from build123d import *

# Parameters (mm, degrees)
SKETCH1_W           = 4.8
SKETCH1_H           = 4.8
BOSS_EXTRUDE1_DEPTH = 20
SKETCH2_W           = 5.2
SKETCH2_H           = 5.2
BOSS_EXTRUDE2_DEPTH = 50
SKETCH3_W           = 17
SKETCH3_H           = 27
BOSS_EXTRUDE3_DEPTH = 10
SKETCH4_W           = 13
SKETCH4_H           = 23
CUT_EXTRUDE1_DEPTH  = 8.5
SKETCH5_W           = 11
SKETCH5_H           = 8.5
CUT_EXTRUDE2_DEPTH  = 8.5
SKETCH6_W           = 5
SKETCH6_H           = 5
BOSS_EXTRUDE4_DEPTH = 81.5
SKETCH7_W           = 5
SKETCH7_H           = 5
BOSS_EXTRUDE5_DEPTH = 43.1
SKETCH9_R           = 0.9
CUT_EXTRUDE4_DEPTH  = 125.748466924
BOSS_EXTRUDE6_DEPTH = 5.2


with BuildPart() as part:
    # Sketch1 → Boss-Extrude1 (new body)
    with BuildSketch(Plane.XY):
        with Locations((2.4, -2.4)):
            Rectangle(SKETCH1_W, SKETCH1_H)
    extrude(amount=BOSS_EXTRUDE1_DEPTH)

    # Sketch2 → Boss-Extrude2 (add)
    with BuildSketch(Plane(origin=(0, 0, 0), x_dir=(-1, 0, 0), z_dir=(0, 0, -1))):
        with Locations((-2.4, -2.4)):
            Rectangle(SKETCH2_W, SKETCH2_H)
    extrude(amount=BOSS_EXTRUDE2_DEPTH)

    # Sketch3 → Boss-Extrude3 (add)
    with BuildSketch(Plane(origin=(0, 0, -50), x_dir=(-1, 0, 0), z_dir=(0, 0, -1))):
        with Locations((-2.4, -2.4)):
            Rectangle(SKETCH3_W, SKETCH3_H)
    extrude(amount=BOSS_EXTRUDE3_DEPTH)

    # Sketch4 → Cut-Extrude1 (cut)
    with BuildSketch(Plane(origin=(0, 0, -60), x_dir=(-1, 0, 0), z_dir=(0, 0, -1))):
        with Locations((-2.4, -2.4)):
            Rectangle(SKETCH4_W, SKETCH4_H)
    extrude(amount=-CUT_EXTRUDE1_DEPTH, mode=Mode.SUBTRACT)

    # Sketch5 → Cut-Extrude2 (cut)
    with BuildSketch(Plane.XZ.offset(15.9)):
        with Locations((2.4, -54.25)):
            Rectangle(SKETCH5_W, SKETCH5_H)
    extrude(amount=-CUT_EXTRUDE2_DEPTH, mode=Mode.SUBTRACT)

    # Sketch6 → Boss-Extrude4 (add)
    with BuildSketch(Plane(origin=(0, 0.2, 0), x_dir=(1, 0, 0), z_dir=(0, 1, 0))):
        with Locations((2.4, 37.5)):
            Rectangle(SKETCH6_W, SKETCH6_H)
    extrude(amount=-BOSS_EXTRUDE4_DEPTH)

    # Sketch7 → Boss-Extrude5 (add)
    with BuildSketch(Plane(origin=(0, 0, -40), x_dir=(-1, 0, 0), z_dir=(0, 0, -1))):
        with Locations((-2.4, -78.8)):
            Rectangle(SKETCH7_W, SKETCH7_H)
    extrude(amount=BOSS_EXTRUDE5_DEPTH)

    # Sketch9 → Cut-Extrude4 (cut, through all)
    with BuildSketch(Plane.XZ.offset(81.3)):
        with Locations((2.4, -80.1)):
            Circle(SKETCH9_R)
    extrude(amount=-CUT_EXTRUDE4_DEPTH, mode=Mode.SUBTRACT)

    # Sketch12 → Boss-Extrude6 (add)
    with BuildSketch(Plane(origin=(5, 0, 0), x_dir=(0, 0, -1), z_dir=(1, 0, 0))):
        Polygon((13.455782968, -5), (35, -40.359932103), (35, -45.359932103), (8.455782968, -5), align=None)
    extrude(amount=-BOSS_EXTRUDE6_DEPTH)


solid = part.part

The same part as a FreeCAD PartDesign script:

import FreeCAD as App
import Part
import Sketcher

V = App.Vector


def add_polygon(sketch, points):
    """Adds a closed chain of lines whose ends are joined by coincident constraints."""
    first, n = sketch.GeometryCount, len(points)
    for a, b in zip(points, points[1:] + points[:1]):
        sketch.addGeometry(Part.LineSegment(App.Vector(*a, 0), App.Vector(*b, 0)), False)
    for i in range(n):
        sketch.addConstraint(Sketcher.Constraint("Coincident", first + i, 2, first + (i + 1) % n, 1))

doc = App.newDocument("Part")
body = doc.addObject("PartDesign::Body", "Body")

# Sketch on XY plane
sketch1 = doc.addObject("Sketcher::SketchObject", "Sketch")
body.addObject(sketch1)
sketch1.AttachmentSupport = (doc.XY_Plane, [""])
sketch1.MapMode = "FlatFace"
add_polygon(sketch1, [(0, 0), (0, -4.8), (4.8, -4.8), (4.8, 0)])  # lines 0-3
sketch1.addConstraint(Sketcher.Constraint("Vertical", 0))
sketch1.addConstraint(Sketcher.Constraint("Horizontal", 1))
sketch1.addConstraint(Sketcher.Constraint("Vertical", 2))
sketch1.addConstraint(Sketcher.Constraint("Horizontal", 3))
sketch1.addConstraint(Sketcher.Constraint("Coincident", 3, 2, -1, 1))
sketch1.addConstraint(Sketcher.Constraint("Equal", 3, 0))
sketch1.addConstraint(Sketcher.Constraint("DistanceX", 1, 1, 1, 2, 4.8))
pad1 = doc.addObject("PartDesign::Pad", "Pad")
body.addObject(pad1)
pad1.Profile = sketch1
pad1.Length = 20

# Sketch on XY plane
sketch2 = doc.addObject("Sketcher::SketchObject", "Sketch001")
body.addObject(sketch2)
sketch2.AttachmentSupport = (doc.XY_Plane, [""])
sketch2.MapMode = "FlatFace"
add_polygon(sketch2, [(5, 0), (5, -5), (0, -5), (0, 0)])  # lines 0-3
sketch2.addConstraint(Sketcher.Constraint("Vertical", 0))
sketch2.addConstraint(Sketcher.Constraint("Horizontal", 1))
sketch2.addConstraint(Sketcher.Constraint("Vertical", 2))
sketch2.addConstraint(Sketcher.Constraint("Horizontal", 3))
sketch2.addConstraint(Sketcher.Constraint("Equal", 3, 0))
sketch2.addConstraint(Sketcher.Constraint("DistanceX", 1, 2, 1, 1, 5.2))
sketch2.addConstraint(Sketcher.Constraint("DistanceX", -1, 1, 0, 2, 5.0))
sketch2.addConstraint(Sketcher.Constraint("DistanceY", 0, 2, -1, 1, 5.0))
pad2 = doc.addObject("PartDesign::Pad", "Pad001")
body.addObject(pad2)
pad2.Profile = sketch2
pad2.Length = 50
pad2.Reversed = True

# Sketch on XY plane
sketch3 = doc.addObject("Sketcher::SketchObject", "Sketch002")
body.addObject(sketch3)
sketch3.AttachmentSupport = (doc.XY_Plane, [""])
sketch3.MapMode = "FlatFace"
sketch3.AttachmentOffset = App.Placement(V(0, 0, -50), App.Rotation())
add_polygon(sketch3, [(11, 11), (11, -16), (-6, -16), (-6, 11)])  # lines 0-3
sketch3.addConstraint(Sketcher.Constraint("Vertical", 0))
sketch3.addConstraint(Sketcher.Constraint("Horizontal", 1))
sketch3.addConstraint(Sketcher.Constraint("Vertical", 2))
sketch3.addConstraint(Sketcher.Constraint("Horizontal", 3))
sketch3.addConstraint(Sketcher.Constraint("DistanceX", 1, 2, 1, 1, 17.0))
sketch3.addConstraint(Sketcher.Constraint("DistanceY", 0, 2, 0, 1, 27.0))
sketch3.addConstraint(Sketcher.Constraint("DistanceX", -1, 1, 0, 2, 10.9))
sketch3.addConstraint(Sketcher.Constraint("DistanceY", 0, 2, -1, 1, 15.9))
pad3 = doc.addObject("PartDesign::Pad", "Pad002")
body.addObject(pad3)
pad3.Profile = sketch3
pad3.Length = 10
pad3.Reversed = True

# Sketch on XY plane
sketch4 = doc.addObject("Sketcher::SketchObject", "Sketch003")
body.addObject(sketch4)
sketch4.AttachmentSupport = (doc.XY_Plane, [""])
sketch4.MapMode = "FlatFace"
sketch4.AttachmentOffset = App.Placement(V(0, 0, -60), App.Rotation())
add_polygon(sketch4, [(9, 9), (9, -14), (-4, -14), (-4, 9)])  # lines 0-3
sketch4.addConstraint(Sketcher.Constraint("Vertical", 0))
sketch4.addConstraint(Sketcher.Constraint("Horizontal", 1))
sketch4.addConstraint(Sketcher.Constraint("Vertical", 2))
sketch4.addConstraint(Sketcher.Constraint("Horizontal", 3))
sketch4.addConstraint(Sketcher.Constraint("DistanceX", 1, 2, 1, 1, 13.0))
sketch4.addConstraint(Sketcher.Constraint("DistanceY", 0, 2, 0, 1, 23.0))
sketch4.addConstraint(Sketcher.Constraint("DistanceX", -1, 1, 0, 2, 8.9))
sketch4.addConstraint(Sketcher.Constraint("DistanceY", 0, 2, -1, 1, 13.9))
pocket1 = doc.addObject("PartDesign::Pocket", "Pocket")
body.addObject(pocket1)
pocket1.Profile = sketch4
pocket1.Length = 8.5
pocket1.Reversed = True

# Sketch on XZ plane
sketch5 = doc.addObject("Sketcher::SketchObject", "Sketch004")
body.addObject(sketch5)
sketch5.AttachmentSupport = (doc.XZ_Plane, [""])
sketch5.MapMode = "FlatFace"
sketch5.AttachmentOffset = App.Placement(V(0, 0, 15.9), App.Rotation())
add_polygon(sketch5, [(-3, -50), (-3, -58), (8, -58), (8, -50)])  # lines 0-3
sketch5.addConstraint(Sketcher.Constraint("Vertical", 0))
sketch5.addConstraint(Sketcher.Constraint("Horizontal", 1))
sketch5.addConstraint(Sketcher.Constraint("Vertical", 2))
sketch5.addConstraint(Sketcher.Constraint("Horizontal", 3))
sketch5.addConstraint(Sketcher.Constraint("DistanceX", 1, 1, 1, 2, 11.0))
sketch5.addConstraint(Sketcher.Constraint("DistanceY", 0, 2, 0, 1, 8.5))
sketch5.addConstraint(Sketcher.Constraint("DistanceY", 2, 2, -1, 1, 50.0))
sketch5.addConstraint(Sketcher.Constraint("DistanceX", 0, 2, -1, 1, 3.1))
pocket2 = doc.addObject("PartDesign::Pocket", "Pocket001")
body.addObject(pocket2)
pocket2.Profile = sketch5
pocket2.Length = 8.5

# Sketch on XZ plane
sketch6 = doc.addObject("Sketcher::SketchObject", "Sketch005")
body.addObject(sketch6)
sketch6.AttachmentSupport = (doc.XZ_Plane, [""])
sketch6.MapMode = "FlatFace"
sketch6.AttachmentOffset = App.Placement(V(0, 0, -0.2), App.Rotation())
add_polygon(sketch6, [(0, -40), (0, -35), (5, -35), (5, -40)])  # lines 0-3
sketch6.addConstraint(Sketcher.Constraint("Vertical", 0))
sketch6.addConstraint(Sketcher.Constraint("Horizontal", 1))
sketch6.addConstraint(Sketcher.Constraint("Vertical", 2))
sketch6.addConstraint(Sketcher.Constraint("Horizontal", 3))
sketch6.addConstraint(Sketcher.Constraint("Equal", 3, 0))
sketch6.addConstraint(Sketcher.Constraint("DistanceX", 1, 1, 1, 2, 5.0))
sketch6.addConstraint(Sketcher.Constraint("DistanceY", 0, 2, -1, 1, 35.0))
sketch6.addConstraint(Sketcher.Constraint("DistanceX", 0, 2, -1, 1, 0.1))
pad4 = doc.addObject("PartDesign::Pad", "Pad003")
body.addObject(pad4)
pad4.Profile = sketch6
pad4.Length = 81.5

# Sketch on XY plane
sketch7 = doc.addObject("Sketcher::SketchObject", "Sketch006")
body.addObject(sketch7)
sketch7.AttachmentSupport = (doc.XY_Plane, [""])
sketch7.MapMode = "FlatFace"
sketch7.AttachmentOffset = App.Placement(V(0, 0, -40), App.Rotation())
add_polygon(sketch7, [(5, -76), (5, -81), (0, -81), (0, -76)])  # lines 0-3
sketch7.addConstraint(Sketcher.Constraint("Vertical", 0))
sketch7.addConstraint(Sketcher.Constraint("Horizontal", 1))
sketch7.addConstraint(Sketcher.Constraint("Vertical", 2))
sketch7.addConstraint(Sketcher.Constraint("Horizontal", 3))
sketch7.addConstraint(Sketcher.Constraint("Equal", 3, 0))
sketch7.addConstraint(Sketcher.Constraint("DistanceX", 1, 2, 1, 1, 5.0))
sketch7.addConstraint(Sketcher.Constraint("DistanceX", -1, 1, 0, 2, 4.9))
sketch7.addConstraint(Sketcher.Constraint("DistanceY", 0, 2, -1, 1, 81.3))
pad5 = doc.addObject("PartDesign::Pad", "Pad004")
body.addObject(pad5)
pad5.Profile = sketch7
pad5.Length = 43.1
pad5.Reversed = True

# Sketch on XZ plane
sketch8 = doc.addObject("Sketcher::SketchObject", "Sketch007")
body.addObject(sketch8)
sketch8.AttachmentSupport = (doc.XZ_Plane, [""])
sketch8.MapMode = "FlatFace"
sketch8.AttachmentOffset = App.Placement(V(0, 0, 81.3), App.Rotation())
sketch8.addGeometry(Part.Circle(V(2.4, -80.1, 0), V(0, 0, 1), 0.9), False)
sketch8.addConstraint(Sketcher.Constraint("Diameter", 0, 1.8))
sketch8.addConstraint(Sketcher.Constraint("DistanceX", -1, 1, 0, 3, 2.4))
sketch8.addConstraint(Sketcher.Constraint("DistanceY", 0, 3, -1, 1, 80.1))
pocket3 = doc.addObject("PartDesign::Pocket", "Pocket002")
body.addObject(pocket3)
pocket3.Profile = sketch8
pocket3.Type = "ThroughAll"

# Sketch on YZ plane
sketch9 = doc.addObject("Sketcher::SketchObject", "Sketch008")
body.addObject(sketch9)
sketch9.AttachmentSupport = (doc.YZ_Plane, [""])
sketch9.MapMode = "FlatFace"
sketch9.AttachmentOffset = App.Placement(V(0, 0, 5), App.Rotation())
add_polygon(sketch9, [(-40, -35), (-5, -13), (-5, -8), (-45, -35)])  # lines 0-3
sketch9.addConstraint(Sketcher.Constraint("Vertical", 1))
sketch9.addConstraint(Sketcher.Constraint("Horizontal", 3))
sketch9.addConstraint(Sketcher.Constraint("Equal", 3, 1))
sketch9.addConstraint(Sketcher.Constraint("DistanceX", 3, 1, 3, 2, 5.0))
sketch9.addConstraint(Sketcher.Constraint("DistanceX", 0, 2, -1, 1, 5.0))
sketch9.addConstraint(Sketcher.Constraint("DistanceY", 2, 2, -1, 1, 35.0))
sketch9.addConstraint(Sketcher.Constraint("Distance", 0, 41.406257))
sketch9.addConstraint(Sketcher.Constraint("Distance", 2, 48.306517))
pad6 = doc.addObject("PartDesign::Pad", "Pad005")
body.addObject(pad6)
pad6.Profile = sketch9
pad6.Length = 5.2
pad6.Reversed = True

doc.recompute()
